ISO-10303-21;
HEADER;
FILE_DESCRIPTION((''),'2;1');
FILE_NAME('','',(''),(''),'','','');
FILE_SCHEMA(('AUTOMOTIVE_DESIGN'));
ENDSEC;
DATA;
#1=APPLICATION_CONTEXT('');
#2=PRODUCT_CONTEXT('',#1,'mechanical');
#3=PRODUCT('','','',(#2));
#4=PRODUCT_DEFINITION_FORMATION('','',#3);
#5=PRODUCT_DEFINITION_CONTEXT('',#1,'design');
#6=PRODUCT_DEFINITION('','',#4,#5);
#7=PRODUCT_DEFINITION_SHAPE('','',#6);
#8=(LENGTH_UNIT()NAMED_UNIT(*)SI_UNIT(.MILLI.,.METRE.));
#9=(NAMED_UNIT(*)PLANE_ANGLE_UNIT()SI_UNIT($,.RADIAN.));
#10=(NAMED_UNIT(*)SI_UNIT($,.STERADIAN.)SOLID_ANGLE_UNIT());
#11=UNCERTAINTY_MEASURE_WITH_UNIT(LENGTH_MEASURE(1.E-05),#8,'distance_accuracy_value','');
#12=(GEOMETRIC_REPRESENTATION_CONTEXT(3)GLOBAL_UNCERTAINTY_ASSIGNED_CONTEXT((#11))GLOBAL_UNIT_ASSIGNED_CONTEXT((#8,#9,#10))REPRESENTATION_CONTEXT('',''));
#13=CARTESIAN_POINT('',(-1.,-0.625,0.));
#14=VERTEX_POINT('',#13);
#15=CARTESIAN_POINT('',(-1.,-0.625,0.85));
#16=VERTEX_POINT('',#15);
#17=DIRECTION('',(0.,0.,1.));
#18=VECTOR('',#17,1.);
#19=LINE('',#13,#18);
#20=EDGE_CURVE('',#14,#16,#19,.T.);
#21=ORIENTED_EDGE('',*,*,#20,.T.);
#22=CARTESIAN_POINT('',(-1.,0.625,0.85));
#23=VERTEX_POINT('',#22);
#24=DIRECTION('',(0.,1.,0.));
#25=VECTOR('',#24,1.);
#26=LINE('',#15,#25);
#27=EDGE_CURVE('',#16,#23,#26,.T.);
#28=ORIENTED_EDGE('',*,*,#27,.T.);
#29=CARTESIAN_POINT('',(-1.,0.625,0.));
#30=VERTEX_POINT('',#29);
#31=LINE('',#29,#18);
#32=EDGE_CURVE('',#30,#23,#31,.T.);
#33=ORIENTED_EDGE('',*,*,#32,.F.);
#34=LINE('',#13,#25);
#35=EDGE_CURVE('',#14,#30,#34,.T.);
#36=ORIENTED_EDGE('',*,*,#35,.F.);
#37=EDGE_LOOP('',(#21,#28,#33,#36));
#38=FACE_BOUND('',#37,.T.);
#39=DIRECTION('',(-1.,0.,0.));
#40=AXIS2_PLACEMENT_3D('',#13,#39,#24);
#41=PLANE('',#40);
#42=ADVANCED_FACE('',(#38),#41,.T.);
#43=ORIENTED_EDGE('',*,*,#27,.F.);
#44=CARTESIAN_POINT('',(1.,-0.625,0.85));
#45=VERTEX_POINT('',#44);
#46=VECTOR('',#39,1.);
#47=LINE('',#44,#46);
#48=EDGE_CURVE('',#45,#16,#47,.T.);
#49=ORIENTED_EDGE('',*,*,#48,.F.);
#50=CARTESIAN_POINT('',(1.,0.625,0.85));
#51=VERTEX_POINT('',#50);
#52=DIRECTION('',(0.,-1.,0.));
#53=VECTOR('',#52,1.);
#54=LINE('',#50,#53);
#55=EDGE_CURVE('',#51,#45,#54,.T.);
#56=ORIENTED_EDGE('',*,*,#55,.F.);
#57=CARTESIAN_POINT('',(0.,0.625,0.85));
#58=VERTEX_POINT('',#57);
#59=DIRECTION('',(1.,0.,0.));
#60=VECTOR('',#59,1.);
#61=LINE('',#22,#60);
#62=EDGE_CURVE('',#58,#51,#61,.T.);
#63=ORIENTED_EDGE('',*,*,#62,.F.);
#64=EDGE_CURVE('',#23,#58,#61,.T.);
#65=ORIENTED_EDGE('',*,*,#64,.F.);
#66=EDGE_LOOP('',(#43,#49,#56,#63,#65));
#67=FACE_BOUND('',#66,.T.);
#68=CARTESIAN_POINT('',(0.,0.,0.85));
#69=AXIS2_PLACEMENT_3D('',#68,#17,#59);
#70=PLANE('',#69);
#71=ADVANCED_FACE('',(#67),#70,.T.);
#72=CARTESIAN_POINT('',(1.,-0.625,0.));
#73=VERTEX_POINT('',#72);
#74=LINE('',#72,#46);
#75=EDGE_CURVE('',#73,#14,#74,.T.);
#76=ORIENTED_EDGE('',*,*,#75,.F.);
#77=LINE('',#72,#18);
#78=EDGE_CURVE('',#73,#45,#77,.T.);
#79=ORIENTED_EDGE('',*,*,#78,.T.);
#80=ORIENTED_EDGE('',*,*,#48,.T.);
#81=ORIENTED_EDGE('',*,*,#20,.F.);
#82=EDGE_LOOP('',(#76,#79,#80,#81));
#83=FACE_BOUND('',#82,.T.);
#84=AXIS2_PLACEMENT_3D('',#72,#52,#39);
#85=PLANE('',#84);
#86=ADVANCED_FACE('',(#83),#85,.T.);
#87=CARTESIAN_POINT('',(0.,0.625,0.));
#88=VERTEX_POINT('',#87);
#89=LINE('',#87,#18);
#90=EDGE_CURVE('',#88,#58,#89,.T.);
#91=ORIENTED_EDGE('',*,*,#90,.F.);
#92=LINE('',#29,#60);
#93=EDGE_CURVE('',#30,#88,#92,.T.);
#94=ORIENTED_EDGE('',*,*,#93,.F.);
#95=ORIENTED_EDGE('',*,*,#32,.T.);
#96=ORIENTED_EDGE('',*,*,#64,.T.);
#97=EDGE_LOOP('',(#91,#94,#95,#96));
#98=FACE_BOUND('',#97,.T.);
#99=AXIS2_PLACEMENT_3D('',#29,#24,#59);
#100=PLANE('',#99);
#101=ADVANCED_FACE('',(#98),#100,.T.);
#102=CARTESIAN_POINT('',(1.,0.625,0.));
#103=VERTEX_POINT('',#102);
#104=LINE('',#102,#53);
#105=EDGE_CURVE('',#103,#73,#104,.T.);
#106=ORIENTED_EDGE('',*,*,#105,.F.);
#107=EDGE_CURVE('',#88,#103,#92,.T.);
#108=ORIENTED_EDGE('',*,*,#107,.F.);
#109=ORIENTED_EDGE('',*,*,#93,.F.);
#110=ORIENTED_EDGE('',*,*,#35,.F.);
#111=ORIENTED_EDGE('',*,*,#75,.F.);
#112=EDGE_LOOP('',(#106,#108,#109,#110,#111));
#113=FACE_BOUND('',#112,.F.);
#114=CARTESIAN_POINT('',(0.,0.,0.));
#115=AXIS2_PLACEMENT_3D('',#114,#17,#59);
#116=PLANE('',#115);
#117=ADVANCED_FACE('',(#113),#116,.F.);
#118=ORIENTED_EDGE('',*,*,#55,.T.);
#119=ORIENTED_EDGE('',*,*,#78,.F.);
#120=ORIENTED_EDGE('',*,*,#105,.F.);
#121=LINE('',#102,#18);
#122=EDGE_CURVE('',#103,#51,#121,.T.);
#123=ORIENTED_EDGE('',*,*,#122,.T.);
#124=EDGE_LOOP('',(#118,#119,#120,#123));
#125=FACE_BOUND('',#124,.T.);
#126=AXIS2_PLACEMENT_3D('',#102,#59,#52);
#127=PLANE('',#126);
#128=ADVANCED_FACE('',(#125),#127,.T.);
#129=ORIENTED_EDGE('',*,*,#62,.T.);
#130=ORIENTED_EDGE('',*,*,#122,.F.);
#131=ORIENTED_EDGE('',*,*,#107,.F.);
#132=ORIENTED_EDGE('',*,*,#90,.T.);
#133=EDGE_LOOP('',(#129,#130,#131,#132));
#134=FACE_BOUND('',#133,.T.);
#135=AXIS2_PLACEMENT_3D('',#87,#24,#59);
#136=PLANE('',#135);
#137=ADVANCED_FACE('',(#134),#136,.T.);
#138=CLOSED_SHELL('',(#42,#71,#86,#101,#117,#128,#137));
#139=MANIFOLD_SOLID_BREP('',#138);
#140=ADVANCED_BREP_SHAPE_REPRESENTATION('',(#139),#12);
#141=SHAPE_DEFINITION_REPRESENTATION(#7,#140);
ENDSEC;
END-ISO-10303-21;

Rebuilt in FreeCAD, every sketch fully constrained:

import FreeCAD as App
import Part
import Sketcher
Q = App.Units.Quantity

doc = App.newDocument("Part")
body = doc.addObject("PartDesign::Body", "Body")

sketch1 = body.newObject("Sketcher::SketchObject", "Sketch")
sketch1.AttachmentSupport = (doc.getObject("XY_Plane"), [""])
sketch1.MapMode = "FlatFace"
sketch1.addGeometry([
    Part.LineSegment(App.Vector(1, 0.6, 0), App.Vector(-1, 0.6, 0)),
    Part.LineSegment(App.Vector(-1, 0.6, 0), App.Vector(-1, -0.6, 0)),
    Part.LineSegment(App.Vector(-1, -0.6, 0), App.Vector(1, -0.6, 0)),
    Part.LineSegment(App.Vector(1, -0.6, 0), App.Vector(1, 0.6, 0)),
], False)
sketch1.addConstraint([
    Sketcher.Constraint("Coincident", 0, 2, 1, 1),
    Sketcher.Constraint("Coincident", 1, 2, 2, 1),
    Sketcher.Constraint("Coincident", 2, 2, 3, 1),
    Sketcher.Constraint("Coincident", 3, 2, 0, 1),
    Sketcher.Constraint("Horizontal", 0),
    Sketcher.Constraint("Vertical", 1),
    Sketcher.Constraint("Horizontal", 2),
    Sketcher.Constraint("Vertical", 3),
    Sketcher.Constraint("Symmetric", 0, 2, 2, 2, -1, 1),
    Sketcher.Constraint("DistanceX", 0, 2, 0, 1, Q("2 mm")),
    Sketcher.Constraint("DistanceY", 1, 2, 1, 1, Q("1.25 mm")),
])
pad1 = body.newObject("PartDesign::Pad", "Pad")
pad1.Profile = sketch1
pad1.Length = 0.85

doc.recompute()
